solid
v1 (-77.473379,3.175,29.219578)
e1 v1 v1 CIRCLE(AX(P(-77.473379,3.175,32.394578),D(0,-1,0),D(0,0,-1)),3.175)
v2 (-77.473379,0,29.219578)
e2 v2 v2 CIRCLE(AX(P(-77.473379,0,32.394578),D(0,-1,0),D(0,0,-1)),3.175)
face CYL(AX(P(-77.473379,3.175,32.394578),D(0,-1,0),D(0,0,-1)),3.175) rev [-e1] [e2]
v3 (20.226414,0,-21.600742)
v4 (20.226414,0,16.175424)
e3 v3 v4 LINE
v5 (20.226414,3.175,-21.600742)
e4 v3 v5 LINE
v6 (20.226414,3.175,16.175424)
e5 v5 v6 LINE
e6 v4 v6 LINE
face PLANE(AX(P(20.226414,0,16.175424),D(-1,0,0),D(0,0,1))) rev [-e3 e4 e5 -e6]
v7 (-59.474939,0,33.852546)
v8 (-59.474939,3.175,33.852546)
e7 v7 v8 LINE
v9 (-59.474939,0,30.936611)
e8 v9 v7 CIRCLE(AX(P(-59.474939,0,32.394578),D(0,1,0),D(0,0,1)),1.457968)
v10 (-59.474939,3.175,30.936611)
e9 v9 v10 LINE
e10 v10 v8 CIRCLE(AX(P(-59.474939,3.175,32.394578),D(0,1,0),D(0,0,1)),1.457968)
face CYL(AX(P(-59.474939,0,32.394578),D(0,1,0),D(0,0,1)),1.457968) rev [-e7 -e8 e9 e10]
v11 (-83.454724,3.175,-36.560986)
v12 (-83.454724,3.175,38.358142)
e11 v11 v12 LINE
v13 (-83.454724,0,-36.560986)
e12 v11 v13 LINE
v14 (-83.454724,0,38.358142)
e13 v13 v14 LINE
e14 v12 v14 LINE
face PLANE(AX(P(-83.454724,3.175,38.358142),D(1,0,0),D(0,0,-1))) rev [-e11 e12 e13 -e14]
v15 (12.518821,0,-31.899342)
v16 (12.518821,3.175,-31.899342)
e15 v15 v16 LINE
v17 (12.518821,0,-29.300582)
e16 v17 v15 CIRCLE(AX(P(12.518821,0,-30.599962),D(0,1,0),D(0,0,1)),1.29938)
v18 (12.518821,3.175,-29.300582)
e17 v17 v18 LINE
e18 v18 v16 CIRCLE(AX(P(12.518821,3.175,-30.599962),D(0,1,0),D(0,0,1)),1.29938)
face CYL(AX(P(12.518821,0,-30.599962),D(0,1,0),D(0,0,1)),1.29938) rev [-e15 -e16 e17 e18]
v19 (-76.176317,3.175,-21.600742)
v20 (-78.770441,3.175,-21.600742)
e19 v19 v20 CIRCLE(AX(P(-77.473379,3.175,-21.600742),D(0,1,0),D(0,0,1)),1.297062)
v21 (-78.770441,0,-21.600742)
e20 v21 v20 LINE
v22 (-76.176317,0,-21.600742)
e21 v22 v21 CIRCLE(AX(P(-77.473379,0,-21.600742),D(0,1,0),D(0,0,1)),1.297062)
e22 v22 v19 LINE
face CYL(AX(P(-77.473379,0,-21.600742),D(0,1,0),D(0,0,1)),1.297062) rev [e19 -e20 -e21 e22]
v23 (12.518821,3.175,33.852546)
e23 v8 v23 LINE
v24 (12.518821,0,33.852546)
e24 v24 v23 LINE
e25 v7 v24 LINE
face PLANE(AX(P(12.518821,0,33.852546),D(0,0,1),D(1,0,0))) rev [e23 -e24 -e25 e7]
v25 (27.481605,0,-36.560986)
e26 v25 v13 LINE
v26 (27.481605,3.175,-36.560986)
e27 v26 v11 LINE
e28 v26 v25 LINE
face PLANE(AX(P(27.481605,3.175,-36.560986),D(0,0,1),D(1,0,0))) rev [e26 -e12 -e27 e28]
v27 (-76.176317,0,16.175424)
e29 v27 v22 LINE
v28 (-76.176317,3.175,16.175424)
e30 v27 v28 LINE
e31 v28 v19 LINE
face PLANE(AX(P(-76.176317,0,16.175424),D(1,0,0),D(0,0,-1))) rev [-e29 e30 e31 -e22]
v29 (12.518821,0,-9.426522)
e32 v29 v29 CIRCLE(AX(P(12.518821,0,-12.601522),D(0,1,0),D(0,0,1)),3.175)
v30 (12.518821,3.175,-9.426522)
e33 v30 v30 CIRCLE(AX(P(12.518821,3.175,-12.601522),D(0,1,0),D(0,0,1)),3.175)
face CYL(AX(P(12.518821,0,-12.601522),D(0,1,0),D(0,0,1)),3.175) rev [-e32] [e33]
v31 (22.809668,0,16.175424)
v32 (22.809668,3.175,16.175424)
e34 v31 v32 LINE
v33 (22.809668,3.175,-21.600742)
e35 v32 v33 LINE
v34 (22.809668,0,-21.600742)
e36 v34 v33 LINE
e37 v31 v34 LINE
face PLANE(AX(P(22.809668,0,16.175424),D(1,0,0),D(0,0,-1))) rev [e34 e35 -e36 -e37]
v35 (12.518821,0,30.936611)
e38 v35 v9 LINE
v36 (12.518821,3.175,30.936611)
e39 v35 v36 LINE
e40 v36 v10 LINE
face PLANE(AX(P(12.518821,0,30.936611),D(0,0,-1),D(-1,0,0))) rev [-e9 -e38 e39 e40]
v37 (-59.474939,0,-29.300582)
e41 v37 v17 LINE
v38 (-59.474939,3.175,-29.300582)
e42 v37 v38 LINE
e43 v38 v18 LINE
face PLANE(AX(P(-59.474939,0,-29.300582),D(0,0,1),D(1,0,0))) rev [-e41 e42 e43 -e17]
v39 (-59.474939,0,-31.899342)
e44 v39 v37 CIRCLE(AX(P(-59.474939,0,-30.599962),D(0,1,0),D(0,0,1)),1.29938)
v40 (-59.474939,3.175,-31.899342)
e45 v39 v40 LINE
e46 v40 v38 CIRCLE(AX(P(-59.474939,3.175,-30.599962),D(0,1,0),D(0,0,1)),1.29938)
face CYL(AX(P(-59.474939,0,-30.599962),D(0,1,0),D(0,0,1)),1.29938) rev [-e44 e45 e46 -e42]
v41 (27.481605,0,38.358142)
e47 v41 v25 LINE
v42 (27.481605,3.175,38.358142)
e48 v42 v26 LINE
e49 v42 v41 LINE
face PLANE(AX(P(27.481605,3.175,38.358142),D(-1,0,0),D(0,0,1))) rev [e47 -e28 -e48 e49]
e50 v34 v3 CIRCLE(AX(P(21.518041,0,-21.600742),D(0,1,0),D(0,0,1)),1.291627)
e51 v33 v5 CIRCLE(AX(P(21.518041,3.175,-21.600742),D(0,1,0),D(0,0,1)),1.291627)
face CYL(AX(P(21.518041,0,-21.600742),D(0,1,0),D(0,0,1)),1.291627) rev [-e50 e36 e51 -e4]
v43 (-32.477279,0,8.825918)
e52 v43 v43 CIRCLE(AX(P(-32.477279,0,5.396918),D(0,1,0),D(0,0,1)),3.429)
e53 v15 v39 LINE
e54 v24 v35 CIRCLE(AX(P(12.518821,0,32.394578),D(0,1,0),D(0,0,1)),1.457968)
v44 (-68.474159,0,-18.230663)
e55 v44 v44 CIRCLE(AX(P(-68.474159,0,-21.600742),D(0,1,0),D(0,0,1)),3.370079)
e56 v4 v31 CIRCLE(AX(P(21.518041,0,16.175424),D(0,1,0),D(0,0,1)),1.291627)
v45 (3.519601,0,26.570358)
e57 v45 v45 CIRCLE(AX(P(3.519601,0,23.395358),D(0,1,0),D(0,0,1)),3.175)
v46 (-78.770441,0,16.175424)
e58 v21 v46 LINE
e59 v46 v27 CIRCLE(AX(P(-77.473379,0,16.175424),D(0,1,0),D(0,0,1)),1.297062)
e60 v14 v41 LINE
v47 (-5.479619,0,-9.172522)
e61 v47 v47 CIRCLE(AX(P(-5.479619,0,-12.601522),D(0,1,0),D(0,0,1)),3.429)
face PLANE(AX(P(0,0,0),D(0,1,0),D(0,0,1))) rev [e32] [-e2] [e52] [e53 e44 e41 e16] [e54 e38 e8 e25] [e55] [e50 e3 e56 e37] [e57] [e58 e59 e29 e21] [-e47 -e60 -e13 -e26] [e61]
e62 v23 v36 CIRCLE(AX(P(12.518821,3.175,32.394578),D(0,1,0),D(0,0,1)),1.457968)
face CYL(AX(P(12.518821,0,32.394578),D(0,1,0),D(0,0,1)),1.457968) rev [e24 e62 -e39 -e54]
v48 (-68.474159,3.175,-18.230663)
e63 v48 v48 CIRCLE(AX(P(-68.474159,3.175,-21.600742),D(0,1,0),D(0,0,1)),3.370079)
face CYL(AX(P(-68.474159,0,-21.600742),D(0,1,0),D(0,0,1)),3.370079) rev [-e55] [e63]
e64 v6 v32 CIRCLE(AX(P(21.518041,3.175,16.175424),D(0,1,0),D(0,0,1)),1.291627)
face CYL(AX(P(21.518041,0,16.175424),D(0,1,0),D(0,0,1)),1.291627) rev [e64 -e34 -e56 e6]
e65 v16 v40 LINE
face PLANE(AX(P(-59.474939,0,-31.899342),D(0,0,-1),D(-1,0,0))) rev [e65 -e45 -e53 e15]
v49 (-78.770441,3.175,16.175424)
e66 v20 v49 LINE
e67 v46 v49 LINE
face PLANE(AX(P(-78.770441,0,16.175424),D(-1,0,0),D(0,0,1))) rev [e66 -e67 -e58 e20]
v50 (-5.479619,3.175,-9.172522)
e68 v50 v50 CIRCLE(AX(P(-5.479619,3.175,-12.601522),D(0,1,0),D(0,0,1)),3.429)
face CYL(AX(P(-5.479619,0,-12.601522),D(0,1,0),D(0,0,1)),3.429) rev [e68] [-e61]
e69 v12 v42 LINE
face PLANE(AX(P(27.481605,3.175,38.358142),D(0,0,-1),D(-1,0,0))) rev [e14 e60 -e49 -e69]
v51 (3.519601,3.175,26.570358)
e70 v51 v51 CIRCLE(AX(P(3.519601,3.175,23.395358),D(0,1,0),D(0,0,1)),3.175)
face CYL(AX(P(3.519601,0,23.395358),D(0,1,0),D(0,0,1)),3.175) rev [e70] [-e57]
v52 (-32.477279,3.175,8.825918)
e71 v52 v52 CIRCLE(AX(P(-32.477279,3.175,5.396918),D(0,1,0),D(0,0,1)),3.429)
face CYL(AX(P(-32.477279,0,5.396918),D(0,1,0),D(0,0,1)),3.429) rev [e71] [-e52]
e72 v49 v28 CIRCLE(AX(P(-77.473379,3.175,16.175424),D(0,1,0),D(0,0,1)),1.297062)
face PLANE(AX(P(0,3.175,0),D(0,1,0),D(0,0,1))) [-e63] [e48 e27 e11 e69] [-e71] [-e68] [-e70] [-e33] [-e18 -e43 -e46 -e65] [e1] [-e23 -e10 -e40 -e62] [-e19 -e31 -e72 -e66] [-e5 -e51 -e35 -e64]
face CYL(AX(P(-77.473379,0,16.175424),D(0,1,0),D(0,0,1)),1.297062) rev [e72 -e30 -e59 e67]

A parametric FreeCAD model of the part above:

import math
import FreeCAD as App
import Part
import Sketcher

V = App.Vector
Q = App.Units.Quantity

doc = App.newDocument("Part")
body = doc.addObject("PartDesign::Body", "Body")

# Sketch on XZ plane
sketch1 = body.newObject("Sketcher::SketchObject", "Sketch")
sketch1.AttachmentSupport = (doc.getObject("XZ_Plane"), [""])
sketch1.MapMode = "FlatFace"
sketch1.addGeometry([
    Part.LineSegment(V(-83.454724, -36.560986, 0), V(-83.454724, 38.358142, 0)),
    Part.LineSegment(V(-83.454724, 38.358142, 0), V(27.481605, 38.358142, 0)),
    Part.LineSegment(V(27.481605, 38.358142, 0), V(27.481605, -36.560986, 0)),
    Part.LineSegment(V(27.481605, -36.560986, 0), V(-83.454724, -36.560986, 0)),
], False)
sketch1.addConstraint([
    Sketcher.Constraint("Coincident", 0, 2, 1, 1),
    Sketcher.Constraint("Coincident", 1, 2, 2, 1),
    Sketcher.Constraint("Coincident", 2, 2, 3, 1),
    Sketcher.Constraint("Coincident", 3, 2, 0, 1),
    Sketcher.Constraint("Vertical", 0),
    Sketcher.Constraint("Horizontal", 1),
    Sketcher.Constraint("Vertical", 2),
    Sketcher.Constraint("Horizontal", 3),
    Sketcher.Constraint("DistanceX", 1, 1, 1, 2, 110.936329),
    Sketcher.Constraint("DistanceY", 0, 1, 0, 2, 74.919129),
    Sketcher.Constraint("DistanceX", 0, 2, -1, 1, 83.454724),
    Sketcher.Constraint("DistanceY", -1, 1, 0, 2, 38.358142),
])
pad1 = body.newObject("PartDesign::Pad", "Pad")
pad1.Profile = sketch1
pad1.Length = Q("0.125 in")
pad1.Reversed = True

# Sketch on XZ plane
sketch2 = body.newObject("Sketcher::SketchObject", "Sketch001")
sketch2.AttachmentSupport = (doc.getObject("XZ_Plane"), [""])
sketch2.MapMode = "FlatFace"
sketch2.addGeometry(Part.Circle(V(-77.473379, 32.394578, 0), V(0, 0, 1), 3.175), False)
sketch2.addConstraint([
    Sketcher.Constraint("Diameter", 0, Q("0.25 in")),
    Sketcher.Constraint("DistanceX", 0, 3, -1, 1, 77.473379),
    Sketcher.Constraint("DistanceY", -1, 1, 0, 3, 32.394578),
])
pocket1 = body.newObject("PartDesign::Pocket", "Pocket")
pocket1.Profile = sketch2
pocket1.Type = "ThroughAll"

# Sketch on XZ plane
sketch3 = body.newObject("Sketcher::SketchObject", "Sketch002")
sketch3.AttachmentSupport = (doc.getObject("XZ_Plane"), [""])
sketch3.MapMode = "FlatFace"
sketch3.AttachmentOffset = App.Placement(V(0, 0, -0.125 * 25.4), App.Rotation())
sketch3.addGeometry([
    Part.Circle(V(3.519601, 23.395358, 0), V(0, 0, 1), 3.175),
    Part.Circle(V(12.518821, -12.601522, 0), V(0, 0, 1), 3.175),
], False)
sketch3.addConstraint([
    Sketcher.Constraint("Equal", 0, 1),
    Sketcher.Constraint("Diameter", 0, Q("0.25 in")),
    Sketcher.Constraint("DistanceX", 0, 3, 1, 3, Q("0.3543 in")),
    Sketcher.Constraint("DistanceY", 1, 3, 0, 3, Q("1.4172 in")),
    Sketcher.Constraint("DistanceX", -1, 1, 0, 3, 3.519601),
    Sketcher.Constraint("DistanceY", -1, 1, 0, 3, 23.395358),
])
pocket2 = body.newObject("PartDesign::Pocket", "Pocket001")
pocket2.Profile = sketch3
pocket2.Type = "ThroughAll"
pocket2.Reversed = True

# Sketch on XZ plane
sketch4 = body.newObject("Sketcher::SketchObject", "Sketch003")
sketch4.AttachmentSupport = (doc.getObject("XZ_Plane"), [""])
sketch4.MapMode = "FlatFace"
sketch4.AttachmentOffset = App.Placement(V(0, 0, -0.125 * 25.4), App.Rotation())
sketch4.addGeometry([
    Part.LineSegment(V(-78.770441, -21.600742, 0), V(-78.770441, 16.175424, 0)),  # 0
    Part.ArcOfCircle(Part.Circle(V(-77.473379, 16.175424, 0), V(0, 0, 1), 1.297062), math.radians(0), math.radians(180)),  # 1
    Part.LineSegment(V(-76.176317, 16.175424, 0), V(-76.176317, -21.600742, 0)),  # 2
    Part.ArcOfCircle(Part.Circle(V(-77.473379, -21.600742, 0), V(0, 0, 1), 1.297062), math.radians(-180), math.radians(0)),  # 3
    Part.LineSegment(V(12.518821, -31.899342, 0), V(-59.474939, -31.899342, 0)),  # 4
    Part.ArcOfCircle(Part.Circle(V(-59.474939, -30.599962, 0), V(0, 0, 1), 1.29938), math.radians(90), math.radians(270)),  # 5
    Part.LineSegment(V(-59.474939, -29.300582, 0), V(12.518821, -29.300582, 0)),  # 6
    Part.ArcOfCircle(Part.Circle(V(12.518821, -30.599962, 0), V(0, 0, 1), 1.29938), math.radians(-90), math.radians(90)),  # 7
    Part.LineSegment(V(-59.474939, 33.852546, 0), V(12.518821, 33.852546, 0)),  # 8
    Part.ArcOfCircle(Part.Circle(V(12.518821, 32.394578, 0), V(0, 0, 1), 1.457968), math.radians(-90), math.radians(90)),  # 9
    Part.LineSegment(V(12.518821, 30.936611, 0), V(-59.474939, 30.936611, 0)),  # 10
    Part.ArcOfCircle(Part.Circle(V(-59.474939, 32.394578, 0), V(0, 0, 1), 1.457968), math.radians(90), math.radians(270)),  # 11
    Part.LineSegment(V(20.226414, -21.600742, 0), V(20.226414, 16.175424, 0)),  # 12
    Part.ArcOfCircle(Part.Circle(V(21.518041, 16.175424, 0), V(0, 0, 1), 1.291627), math.radians(0), math.radians(180)),  # 13
    Part.LineSegment(V(22.809668, 16.175424, 0), V(22.809668, -21.600742, 0)),  # 14
    Part.ArcOfCircle(Part.Circle(V(21.518041, -21.600742, 0), V(0, 0, 1), 1.291627), math.radians(180), math.radians(360)),  # 15
], False)
sketch4.addConstraint([
    Sketcher.Constraint("Tangent", 0, 2, 1, 2),
    Sketcher.Constraint("Tangent", 1, 1, 2, 1),
    Sketcher.Constraint("Tangent", 2, 2, 3, 2),
    Sketcher.Constraint("Tangent", 3, 1, 0, 1),
    Sketcher.Constraint("Tangent", 4, 2, 5, 2),
    Sketcher.Constraint("Tangent", 5, 1, 6, 1),
    Sketcher.Constraint("Tangent", 6, 2, 7, 2),
    Sketcher.Constraint("Tangent", 7, 1, 4, 1),
    Sketcher.Constraint("Tangent", 8, 2, 9, 2),
    Sketcher.Constraint("Tangent", 9, 1, 10, 1),
    Sketcher.Constraint("Tangent", 10, 2, 11, 2),
    Sketcher.Constraint("Tangent", 11, 1, 8, 1),
    Sketcher.Constraint("Tangent", 12, 2, 13, 2),
    Sketcher.Constraint("Tangent", 13, 1, 14, 1),
    Sketcher.Constraint("Tangent", 14, 2, 15, 2),
    Sketcher.Constraint("Tangent", 15, 1, 12, 1),
    Sketcher.Constraint("Vertical", 0),
    Sketcher.Constraint("Vertical", 2),
    Sketcher.Constraint("Horizontal", 4),
    Sketcher.Constraint("Horizontal", 6),
    Sketcher.Constraint("Horizontal", 8),
    Sketcher.Constraint("Horizontal", 10),
    Sketcher.Constraint("Vertical", 12),
    Sketcher.Constraint("Vertical", 14),
    Sketcher.Constraint("Horizontal", 1, 3, 13, 3),
    Sketcher.Constraint("Horizontal", 3, 3, 15, 3),
    Sketcher.Constraint("Vertical", 7, 3, 9, 3),
    Sketcher.Constraint("Vertical", 5, 3, 11, 3),
    Sketcher.Constraint("DistanceX", 4, 2, 4, 1, Q("2.8344 in")),
    Sketcher.Constraint("Radius", 5, 1.29938),
    Sketcher.Constraint("DistanceX", 3, 3, 7, 3, Q("3.543 in")),
    Sketcher.Constraint("Radius", 1, 1.297062),
    Sketcher.Constraint("Radius", 9, 1.457968),
    Sketcher.Constraint("Radius", 13, 1.291627),
    Sketcher.Constraint("DistanceY", 5, 3, 3, 3, Q("0.3543 in")),
    Sketcher.Constraint("DistanceY", 7, 3, 9, 3, Q("2.4801 in")),
    Sketcher.Constraint("DistanceX", 9, 3, 13, 3, Q("0.3543 in")),
    Sketcher.Constraint("DistanceY", 0, 1, 0, 2, 37.776166),
    Sketcher.Constraint("DistanceX", 1, 3, -1, 1, 77.473379),
    Sketcher.Constraint("DistanceY", 3, 3, -1, 1, 21.600742),
])
pocket3 = body.newObject("PartDesign::Pocket", "Pocket002")
pocket3.Profile = sketch4
pocket3.Type = "ThroughAll"
pocket3.Reversed = True

# Sketch on XZ plane
sketch5 = body.newObject("Sketcher::SketchObject", "Sketch004")
sketch5.AttachmentSupport = (doc.getObject("XZ_Plane"), [""])
sketch5.MapMode = "FlatFace"
sketch5.AttachmentOffset = App.Placement(V(0, 0, -0.125 * 25.4), App.Rotation())
sketch5.addGeometry([
    Part.Circle(V(-68.474159, -21.600742, 0), V(0, 0, 1), 3.370079),
    Part.Circle(V(-32.477279, 5.396918, 0), V(0, 0, 1), 3.429),
    Part.Circle(V(-5.479619, -12.601522, 0), V(0, 0, 1), 3.429),
], False)
sketch5.addConstraint([
    Sketcher.Constraint("Equal", 1, 2),
    Sketcher.Constraint("Diameter", 1, Q("0.27 in")),
    Sketcher.Constraint("Diameter", 0, 6.740159),
    Sketcher.Constraint("DistanceX", 0, 3, 1, 3, Q("1.4172 in")),
    Sketcher.Constraint("DistanceY", 0, 3, 1, 3, Q("1.0629 in")),
    Sketcher.Constraint("DistanceX", 1, 3, 2, 3, Q("1.0629 in")),
    Sketcher.Constraint("DistanceY", 2, 3, 1, 3, Q("0.7086 in")),
    Sketcher.Constraint("DistanceX", 0, 3, -1, 1, 68.474159),
    Sketcher.Constraint("DistanceY", 0, 3, -1, 1, 21.600742),
])
pocket4 = body.newObject("PartDesign::Pocket", "Pocket003")
pocket4.Profile = sketch5
pocket4.Type = "ThroughAll"
pocket4.Reversed = True

doc.recompute()
